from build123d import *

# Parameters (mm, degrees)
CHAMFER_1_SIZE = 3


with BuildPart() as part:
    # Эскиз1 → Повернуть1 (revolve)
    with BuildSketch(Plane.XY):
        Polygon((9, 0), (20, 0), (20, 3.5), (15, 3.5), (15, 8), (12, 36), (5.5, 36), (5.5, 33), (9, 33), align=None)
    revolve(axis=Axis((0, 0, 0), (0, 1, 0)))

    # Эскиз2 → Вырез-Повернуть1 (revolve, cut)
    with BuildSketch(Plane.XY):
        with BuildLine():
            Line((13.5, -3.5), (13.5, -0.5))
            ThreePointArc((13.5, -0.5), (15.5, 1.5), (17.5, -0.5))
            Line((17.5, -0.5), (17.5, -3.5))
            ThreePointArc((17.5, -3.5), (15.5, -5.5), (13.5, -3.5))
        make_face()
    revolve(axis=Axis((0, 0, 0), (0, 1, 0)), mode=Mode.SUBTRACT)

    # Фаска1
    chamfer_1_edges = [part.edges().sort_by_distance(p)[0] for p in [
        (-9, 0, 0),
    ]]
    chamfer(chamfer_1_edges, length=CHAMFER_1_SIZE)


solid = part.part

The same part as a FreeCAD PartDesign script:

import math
import FreeCAD as App
import Part
import Sketcher
from FreeCAD import Vector
Q = App.Units.Quantity


def edges_at(feature, points):
    """Names of the edges that pass closest to the given points."""
    edges = feature.Shape.Edges
    near = lambda p: min(range(len(edges)), key=lambda i: edges[i].distToShape(Part.Vertex(*p))[0])
    return sorted({f"Edge{near(p) + 1}" for p in points})

doc = App.newDocument("Part")
body = doc.addObject("PartDesign::Body", "Body")

sketch1 = body.newObject("Sketcher::SketchObject", "Sketch")
sketch1.AttachmentSupport = (doc.getObject("XY_Plane"), [""])
sketch1.MapMode = "FlatFace"
sketch1.addGeometry(Part.LineSegment(Vector(9, 0, 0), Vector(20, 0, 0)), False)
sketch1.addGeometry(Part.LineSegment(Vector(20, 0, 0), Vector(20, 3.5, 0)), False)
sketch1.addGeometry(Part.LineSegment(Vector(20, 3.5, 0), Vector(15, 3.5, 0)), False)
sketch1.addGeometry(Part.LineSegment(Vector(15, 3.5, 0), Vector(15, 8, 0)), False)
sketch1.addGeometry(Part.LineSegment(Vector(15, 8, 0), Vector(12, 36, 0)), False)
sketch1.addGeometry(Part.LineSegment(Vector(12, 36, 0), Vector(5.5, 36, 0)), False)
sketch1.addGeometry(Part.LineSegment(Vector(5.5, 36, 0), Vector(5.5, 33, 0)), False)
sketch1.addGeometry(Part.LineSegment(Vector(5.5, 33, 0), Vector(9, 33, 0)), False)
sketch1.addGeometry(Part.LineSegment(Vector(9, 33, 0), Vector(9, 0, 0)), False)
sketch1.addConstraint(Sketcher.Constraint("Coincident", 0, 2, 1, 1))
sketch1.addConstraint(Sketcher.Constraint("Coincident", 1, 2, 2, 1))
sketch1.addConstraint(Sketcher.Constraint("Coincident", 2, 2, 3, 1))
sketch1.addConstraint(Sketcher.Constraint("Coincident", 3, 2, 4, 1))
sketch1.addConstraint(Sketcher.Constraint("Coincident", 4, 2, 5, 1))
sketch1.addConstraint(Sketcher.Constraint("Coincident", 5, 2, 6, 1))
sketch1.addConstraint(Sketcher.Constraint("Coincident", 6, 2, 7, 1))
sketch1.addConstraint(Sketcher.Constraint("Coincident", 7, 2, 8, 1))
sketch1.addConstraint(Sketcher.Constraint("Coincident", 8, 2, 0, 1))
sketch1.addConstraint(Sketcher.Constraint("Horizontal", 0))
sketch1.addConstraint(Sketcher.Constraint("Vertical", 1))
sketch1.addConstraint(Sketcher.Constraint("Horizontal", 2))
sketch1.addConstraint(Sketcher.Constraint("Vertical", 3))
sketch1.addConstraint(Sketcher.Constraint("Horizontal", 5))
sketch1.addConstraint(Sketcher.Constraint("Vertical", 6))
sketch1.addConstraint(Sketcher.Constraint("Horizontal", 7))
sketch1.addConstraint(Sketcher.Constraint("Vertical", 8))
sketch1.addConstraint(Sketcher.Constraint("PointOnObject", 0, 2, -1))
sketch1.addConstraint(Sketcher.Constraint("Equal", 7, 1))
sketch1.addConstraint(Sketcher.Constraint("DistanceX", 0, 1, 0, 2, Q("11 mm")))
sketch1.addConstraint(Sketcher.Constraint("DistanceX", 2, 2, 2, 1, Q("5 mm")))
sketch1.addConstraint(Sketcher.Constraint("DistanceY", 6, 2, 6, 1, Q("3 mm")))
sketch1.addConstraint(Sketcher.Constraint("DistanceY", 8, 2, 8, 1, Q("33 mm")))
sketch1.addConstraint(Sketcher.Constraint("DistanceX", 5, 2, 5, 1, Q("6.5 mm")))
sketch1.addConstraint(Sketcher.Constraint("DistanceX", 7, 1, 7, 2, Q("3.5 mm")))
sketch1.addConstraint(Sketcher.Constraint("DistanceY", 3, 1, 3, 2, Q("4.5 mm")))
sketch1.addConstraint(Sketcher.Constraint("DistanceX", -1, 1, 0, 2, Q("20 mm")))
revolution = body.newObject("PartDesign::Revolution", "Revolution")
revolution.Profile = sketch1
revolution.ReferenceAxis = (sketch1, ["V_Axis"])
revolution.Angle = 360

sketch2 = body.newObject("Sketcher::SketchObject", "Sketch001")
sketch2.AttachmentSupport = (doc.getObject("XY_Plane"), [""])
sketch2.MapMode = "FlatFace"
sketch2.addGeometry(Part.LineSegment(Vector(13.5, -0.5, 0), Vector(13.5, -3.5, 0)), False)
sketch2.addGeometry(Part.ArcOfCircle(Part.Circle(Vector(15.5, -3.5, 0), Vector(0, 0, 1), 2), math.radians(180), math.radians(360)), False)
sketch2.addGeometry(Part.LineSegment(Vector(17.5, -3.5, 0), Vector(17.5, -0.5, 0)), False)
sketch2.addGeometry(Part.ArcOfCircle(Part.Circle(Vector(15.5, -0.5, 0), Vector(0, 0, 1), 2), math.radians(0), math.radians(180)), False)
sketch2.addConstraint(Sketcher.Constraint("Tangent", 0, 2, 1, 1))
sketch2.addConstraint(Sketcher.Constraint("Tangent", 1, 2, 2, 1))
sketch2.addConstraint(Sketcher.Constraint("Tangent", 2, 2, 3, 1))
sketch2.addConstraint(Sketcher.Constraint("Tangent", 3, 2, 0, 1))
sketch2.addConstraint(Sketcher.Constraint("Vertical", 0))
sketch2.addConstraint(Sketcher.Constraint("Vertical", 2))
sketch2.addConstraint(Sketcher.Constraint("Radius", 1, Q("2 mm")))
sketch2.addConstraint(Sketcher.Constraint("DistanceY", 0, 2, 0, 1, Q("3 mm")))
sketch2.addConstraint(Sketcher.Constraint("DistanceX", -1, 1, 1, 3, Q("15.5 mm")))
sketch2.addConstraint(Sketcher.Constraint("DistanceY", 1, 3, -1, 1, Q("3.5 mm")))
groove = body.newObject("PartDesign::Groove", "Groove")
groove.Profile = sketch2
groove.ReferenceAxis = (sketch2, ["V_Axis"])
groove.Angle = 360
doc.recompute()

chamfer = body.newObject("PartDesign::Chamfer", "Chamfer")
chamfer.Base = (groove, edges_at(groove, [(-9, 0, 0)]))
chamfer.Size = 3

doc.recompute()
